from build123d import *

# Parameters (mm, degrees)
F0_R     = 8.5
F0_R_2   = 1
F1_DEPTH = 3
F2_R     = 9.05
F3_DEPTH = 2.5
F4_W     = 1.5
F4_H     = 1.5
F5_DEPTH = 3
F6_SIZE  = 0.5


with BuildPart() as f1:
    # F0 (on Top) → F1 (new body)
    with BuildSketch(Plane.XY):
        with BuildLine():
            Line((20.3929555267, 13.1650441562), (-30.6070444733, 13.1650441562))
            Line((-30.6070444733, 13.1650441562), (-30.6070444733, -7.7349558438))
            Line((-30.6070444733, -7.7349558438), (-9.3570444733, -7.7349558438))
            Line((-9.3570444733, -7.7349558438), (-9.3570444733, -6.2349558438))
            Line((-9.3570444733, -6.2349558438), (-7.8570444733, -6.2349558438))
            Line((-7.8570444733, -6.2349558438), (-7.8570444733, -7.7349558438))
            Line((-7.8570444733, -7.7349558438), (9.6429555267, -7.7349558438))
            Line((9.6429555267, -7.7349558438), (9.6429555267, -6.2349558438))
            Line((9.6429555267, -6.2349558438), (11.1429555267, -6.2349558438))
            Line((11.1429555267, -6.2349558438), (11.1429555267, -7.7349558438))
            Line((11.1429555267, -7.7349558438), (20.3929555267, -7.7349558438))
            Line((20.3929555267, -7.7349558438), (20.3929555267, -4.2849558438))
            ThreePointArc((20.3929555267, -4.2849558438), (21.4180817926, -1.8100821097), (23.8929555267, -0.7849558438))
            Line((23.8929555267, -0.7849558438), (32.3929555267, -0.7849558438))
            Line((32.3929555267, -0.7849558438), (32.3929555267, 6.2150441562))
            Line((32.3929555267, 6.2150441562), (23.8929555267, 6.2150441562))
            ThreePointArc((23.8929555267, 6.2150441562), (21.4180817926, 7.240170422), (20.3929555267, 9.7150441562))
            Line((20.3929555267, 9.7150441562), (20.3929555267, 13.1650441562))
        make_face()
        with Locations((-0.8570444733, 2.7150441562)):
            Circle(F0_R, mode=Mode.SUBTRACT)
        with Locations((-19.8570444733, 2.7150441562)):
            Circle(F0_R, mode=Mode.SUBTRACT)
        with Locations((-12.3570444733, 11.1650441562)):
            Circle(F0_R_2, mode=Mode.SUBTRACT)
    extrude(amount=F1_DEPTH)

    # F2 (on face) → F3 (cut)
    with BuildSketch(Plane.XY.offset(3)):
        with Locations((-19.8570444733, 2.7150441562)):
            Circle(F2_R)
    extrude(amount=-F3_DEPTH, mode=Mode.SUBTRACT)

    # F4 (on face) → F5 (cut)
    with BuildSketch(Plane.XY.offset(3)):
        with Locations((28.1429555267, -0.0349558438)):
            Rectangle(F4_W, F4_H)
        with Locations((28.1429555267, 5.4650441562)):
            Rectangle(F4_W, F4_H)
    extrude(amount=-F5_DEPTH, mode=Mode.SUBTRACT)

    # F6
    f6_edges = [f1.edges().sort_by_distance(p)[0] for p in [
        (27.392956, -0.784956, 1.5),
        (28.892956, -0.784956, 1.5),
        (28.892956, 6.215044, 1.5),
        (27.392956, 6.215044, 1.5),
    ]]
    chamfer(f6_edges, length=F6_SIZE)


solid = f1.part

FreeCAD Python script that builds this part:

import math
import FreeCAD as App
import Part
import Sketcher
from FreeCAD import Vector


def edges_at(feature, points):
    """Names of the edges that pass closest to the given points."""
    edges = feature.Shape.Edges
    near = lambda p: min(range(len(edges)), key=lambda i: edges[i].distToShape(Part.Vertex(*p))[0])
    return sorted({f"Edge{near(p) + 1}" for p in points})

doc = App.newDocument("Part")
params = doc.addObject("Spreadsheet::Sheet", "Params")
for row, (alias, value) in enumerate([
    ("sketch1_diameter", "17 mm"),
    ("sketch1_diameter2", "2 mm"),
    ("sketch1_radius", "3.5 mm"),
    ("sketch1_width", "51 mm"),
    ("sketch1_height", "7 mm"),
    ("pad1_length", "3 mm"),
    ("sketch2_diameter", "18.1 mm"),
    ("pocket1_length", "2.5 mm"),
    ("sketch3_width", "1.5 mm"),
    ("pocket2_length", "3 mm"),
    ("chamfer_size", "0.5 mm"),
], start=1):
    params.set(f"A{row}", alias)
    params.set(f"B{row}", "=" + value)
    params.setAlias(f"B{row}", alias)

body = doc.addObject("PartDesign::Body", "Body")

# Sketch on XY plane
sketch1 = body.newObject("Sketcher::SketchObject", "Sketch")
sketch1.AttachmentSupport = (doc.getObject("XY_Plane"), [""])
sketch1.MapMode = "FlatFace"
sketch1.addGeometry([
    Part.LineSegment(Vector(20.4, 13.2, 0), Vector(-30.6, 13.2, 0)),  # 0
    Part.LineSegment(Vector(-30.6, 13.2, 0), Vector(-30.6, -7.7, 0)),  # 1
    Part.LineSegment(Vector(-30.6, -7.7, 0), Vector(-9.4, -7.7, 0)),  # 2
    Part.LineSegment(Vector(-9.4, -7.7, 0), Vector(-9.4, -6.2, 0)),  # 3
    Part.LineSegment(Vector(-9.4, -6.2, 0), Vector(-7.9, -6.2, 0)),  # 4
    Part.LineSegment(Vector(-7.9, -6.2, 0), Vector(-7.9, -7.7, 0)),  # 5
    Part.LineSegment(Vector(-7.9, -7.7, 0), Vector(9.6, -7.7, 0)),  # 6
    Part.LineSegment(Vector(9.6, -7.7, 0), Vector(9.6, -6.2, 0)),  # 7
    Part.LineSegment(Vector(9.6, -6.2, 0), Vector(11.1, -6.2, 0)),  # 8
    Part.LineSegment(Vector(11.1, -6.2, 0), Vector(11.1, -7.7, 0)),  # 9
    Part.LineSegment(Vector(11.1, -7.7, 0), Vector(20.4, -7.7, 0)),  # 10
    Part.LineSegment(Vector(20.4, -7.7, 0), Vector(20.4, -4.3, 0)),  # 11
    Part.ArcOfCircle(Part.Circle(Vector(23.9, -4.3, 0), Vector(0, 0, 1), 3.5), math.radians(90), math.radians(180)),  # 12
    Part.LineSegment(Vector(23.9, -0.8, 0), Vector(32.4, -0.8, 0)),  # 13
    Part.LineSegment(Vector(32.4, -0.8, 0), Vector(32.4, 6.2, 0)),  # 14
    Part.LineSegment(Vector(32.4, 6.2, 0), Vector(23.9, 6.2, 0)),  # 15
    Part.ArcOfCircle(Part.Circle(Vector(23.9, 9.7, 0), Vector(0, 0, 1), 3.5), math.radians(180), math.radians(270)),  # 16
    Part.LineSegment(Vector(20.4, 9.7, 0), Vector(20.4, 13.2, 0)),  # 17
    Part.Circle(Vector(-19.9, 2.7, 0), Vector(0, 0, 1), 8.5),  # 18
    Part.Circle(Vector(-0.9, 2.7, 0), Vector(0, 0, 1), 8.5),  # 19
    Part.Circle(Vector(-12.4, 11.2, 0), Vector(0, 0, 1), 1),  # 20
], False)
sketch1.addConstraint([
    Sketcher.Constraint("Coincident", 0, 2, 1, 1),
    Sketcher.Constraint("Coincident", 1, 2, 2, 1),
    Sketcher.Constraint("Coincident", 2, 2, 3, 1),
    Sketcher.Constraint("Coincident", 3, 2, 4, 1),
    Sketcher.Constraint("Coincident", 4, 2, 5, 1),
    Sketcher.Constraint("Coincident", 5, 2, 6, 1),
    Sketcher.Constraint("Coincident", 6, 2, 7, 1),
    Sketcher.Constraint("Coincident", 7, 2, 8, 1),
    Sketcher.Constraint("Coincident", 8, 2, 9, 1),
    Sketcher.Constraint("Coincident", 9, 2, 10, 1),
    Sketcher.Constraint("Coincident", 10, 2, 11, 1),
    Sketcher.Constraint("Tangent", 11, 2, 12, 2),
    Sketcher.Constraint("Tangent", 12, 1, 13, 1),
    Sketcher.Constraint("Coincident", 13, 2, 14, 1),
    Sketcher.Constraint("Coincident", 14, 2, 15, 1),
    Sketcher.Constraint("Tangent", 15, 2, 16, 2),
    Sketcher.Constraint("Tangent", 16, 1, 17, 1),
    Sketcher.Constraint("Coincident", 17, 2, 0, 1),
    Sketcher.Constraint("Horizontal", 0),
    Sketcher.Constraint("Vertical", 1),
    Sketcher.Constraint("Horizontal", 2),
    Sketcher.Constraint("Vertical", 3),
    Sketcher.Constraint("Horizontal", 4),
    Sketcher.Constraint("Vertical", 5),
    Sketcher.Constraint("Horizontal", 6),
    Sketcher.Constraint("Vertical", 7),
    Sketcher.Constraint("Horizontal", 8),
    Sketcher.Constraint("Vertical", 9),
    Sketcher.Constraint("Horizontal", 10),
    Sketcher.Constraint("Vertical", 11),
    Sketcher.Constraint("Horizontal", 13),
    Sketcher.Constraint("Vertical", 14),
    Sketcher.Constraint("Horizontal", 15),
    Sketcher.Constraint("Vertical", 17),
    Sketcher.Constraint("Equal", 12, 16),
    Sketcher.Constraint("Equal", 18, 19),
    Sketcher.Constraint("Horizontal", 18, 3, 19, 3),
    Sketcher.Constraint("Horizontal", 2, 2, 5, 2),
    Sketcher.Constraint("Horizontal", 4, 2, 7, 2),
    Sketcher.Constraint("Horizontal", 6, 2, 9, 2),
    Sketcher.Constraint("Vertical", 12, 3, 16, 3),
    Sketcher.Constraint("Equal", 4, 8),
    Sketcher.Constraint("Equal", 8, 3),
    Sketcher.Constraint("Equal", 11, 17),
    Sketcher.Constraint("Diameter", 18, 17.0),
    Sketcher.Constraint("Diameter", 20, 2.0),
    Sketcher.Constraint("Radius", 12, 3.5),
    Sketcher.Constraint("DistanceX", 0, 2, 0, 1, 51.0),
    Sketcher.Constraint("DistanceY", 14, 1, 14, 2, 7.0),
    Sketcher.Constraint("DistanceX", 4, 1, 4, 2, 1.5),
    Sketcher.Constraint("DistanceX", 6, 1, 6, 2, 17.5),
    Sketcher.Constraint("DistanceX", 13, 1, 13, 2, 8.5),
    Sketcher.Constraint("DistanceY", 1, 2, 1, 1, 20.9),
    Sketcher.Constraint("DistanceY", 12, 3, 18, 3, 7.0),
    Sketcher.Constraint("DistanceX", 18, 3, 19, 3, 19.0),
    Sketcher.Constraint("DistanceY", 20, 3, 0, 2, 2.0),
    Sketcher.Constraint("DistanceX", 20, 3, 2, 2, 3.0),
    Sketcher.Constraint("DistanceX", 4, 2, 19, 3, 7.0),
    Sketcher.Constraint("DistanceX", 2, 1, 2, 2, 21.25),
    Sketcher.Constraint("DistanceX", -1, 1, 12, 3, 23.892956),
    Sketcher.Constraint("DistanceY", 12, 3, -1, 1, 4.284956),
])
sketch1.setExpression("Constraints[44]", "Params.sketch1_diameter")
sketch1.setExpression("Constraints[45]", "Params.sketch1_diameter2")
sketch1.setExpression("Constraints[46]", "Params.sketch1_radius")
sketch1.setExpression("Constraints[47]", "Params.sketch1_width")
sketch1.setExpression("Constraints[48]", "Params.sketch1_height")
pad1 = body.newObject("PartDesign::Pad", "Pad")
pad1.Profile = sketch1
pad1.setExpression("Length", "Params.pad1_length")

# Sketch on XY plane
sketch2 = body.newObject("Sketcher::SketchObject", "Sketch001")
sketch2.AttachmentSupport = (doc.getObject("XY_Plane"), [""])
sketch2.MapMode = "FlatFace"
sketch2.AttachmentOffset = App.Placement(Vector(0, 0, 3), App.Rotation())
sketch2.addGeometry(Part.Circle(Vector(-20, 3, 0), Vector(0, 0, 1), 9), False)
sketch2.addConstraint([
    Sketcher.Constraint("Diameter", 0, 18.1),
    Sketcher.Constraint("DistanceX", 0, 3, -1, 1, 19.857044),
    Sketcher.Constraint("DistanceY", -1, 1, 0, 3, 2.715044),
])
sketch2.setExpression("Constraints[0]", "Params.sketch2_diameter")
pocket1 = body.newObject("PartDesign::Pocket", "Pocket")
pocket1.Profile = sketch2
pocket1.setExpression("Length", "Params.pocket1_length")

# Sketch on XY plane
sketch3 = body.newObject("Sketcher::SketchObject", "Sketch002")
sketch3.AttachmentSupport = (doc.getObject("XY_Plane"), [""])
sketch3.MapMode = "FlatFace"
sketch3.AttachmentOffset = App.Placement(Vector(0, 0, 3), App.Rotation())
sketch3.addGeometry([
    Part.LineSegment(Vector(27.4, 0.7, 0), Vector(27.4, -0.8, 0)),  # 0
    Part.LineSegment(Vector(27.4, -0.8, 0), Vector(28.9, -0.8, 0)),  # 1
    Part.LineSegment(Vector(28.9, -0.8, 0), Vector(28.9, 0.7, 0)),  # 2
    Part.LineSegment(Vector(28.9, 0.7, 0), Vector(27.4, 0.7, 0)),  # 3
    Part.LineSegment(Vector(27.4, 6.2, 0), Vector(27.4, 4.7, 0)),  # 4
    Part.LineSegment(Vector(27.4, 4.7, 0), Vector(28.9, 4.7, 0)),  # 5
    Part.LineSegment(Vector(28.9, 4.7, 0), Vector(28.9, 6.2, 0)),  # 6
    Part.LineSegment(Vector(28.9, 6.2, 0), Vector(27.4, 6.2, 0)),  # 7
], False)
sketch3.addConstraint([
    Sketcher.Constraint("Coincident", 0, 2, 1, 1),
    Sketcher.Constraint("Coincident", 1, 2, 2, 1),
    Sketcher.Constraint("Coincident", 2, 2, 3, 1),
    Sketcher.Constraint("Coincident", 3, 2, 0, 1),
    Sketcher.Constraint("Coincident", 4, 2, 5, 1),
    Sketcher.Constraint("Coincident", 5, 2, 6, 1),
    Sketcher.Constraint("Coincident", 6, 2, 7, 1),
    Sketcher.Constraint("Coincident", 7, 2, 4, 1),
    Sketcher.Constraint("Vertical", 0),
    Sketcher.Constraint("Horizontal", 1),
    Sketcher.Constraint("Vertical", 2),
    Sketcher.Constraint("Horizontal", 3),
    Sketcher.Constraint("Vertical", 4),
    Sketcher.Constraint("Horizontal", 5),
    Sketcher.Constraint("Vertical", 6),
    Sketcher.Constraint("Horizontal", 7),
    Sketcher.Constraint("Vertical", 3, 2, 4, 2),
    Sketcher.Constraint("Vertical", 2, 2, 5, 2),
    Sketcher.Constraint("Equal", 7, 0),
    Sketcher.Constraint("Equal", 2, 4),
    Sketcher.Constraint("DistanceX", 1, 1, 1, 2, 1.5),
    Sketcher.Constraint("DistanceY", 3, 2, 4, 2, 4.0),
    Sketcher.Constraint("DistanceX", -1, 1, 0, 2, 27.392956),
    Sketcher.Constraint("DistanceY", 0, 2, -1, 1, 0.784956),
])
sketch3.setExpression("Constraints[20]", "Params.sketch3_width")
pocket2 = body.newObject("PartDesign::Pocket", "Pocket001")
pocket2.Profile = sketch3
pocket2.setExpression("Length", "Params.pocket2_length")
doc.recompute()

chamfer = body.newObject("PartDesign::Chamfer", "Chamfer")
chamfer.Base = (pocket2, edges_at(pocket2, [
    (27.393, -0.785, 1.5),
    (28.893, -0.785, 1.5),
    (28.893, 6.215, 1.5),
    (27.393, 6.215, 1.5),
]))
chamfer.setExpression("Size", "Params.chamfer_size")

doc.recompute()
